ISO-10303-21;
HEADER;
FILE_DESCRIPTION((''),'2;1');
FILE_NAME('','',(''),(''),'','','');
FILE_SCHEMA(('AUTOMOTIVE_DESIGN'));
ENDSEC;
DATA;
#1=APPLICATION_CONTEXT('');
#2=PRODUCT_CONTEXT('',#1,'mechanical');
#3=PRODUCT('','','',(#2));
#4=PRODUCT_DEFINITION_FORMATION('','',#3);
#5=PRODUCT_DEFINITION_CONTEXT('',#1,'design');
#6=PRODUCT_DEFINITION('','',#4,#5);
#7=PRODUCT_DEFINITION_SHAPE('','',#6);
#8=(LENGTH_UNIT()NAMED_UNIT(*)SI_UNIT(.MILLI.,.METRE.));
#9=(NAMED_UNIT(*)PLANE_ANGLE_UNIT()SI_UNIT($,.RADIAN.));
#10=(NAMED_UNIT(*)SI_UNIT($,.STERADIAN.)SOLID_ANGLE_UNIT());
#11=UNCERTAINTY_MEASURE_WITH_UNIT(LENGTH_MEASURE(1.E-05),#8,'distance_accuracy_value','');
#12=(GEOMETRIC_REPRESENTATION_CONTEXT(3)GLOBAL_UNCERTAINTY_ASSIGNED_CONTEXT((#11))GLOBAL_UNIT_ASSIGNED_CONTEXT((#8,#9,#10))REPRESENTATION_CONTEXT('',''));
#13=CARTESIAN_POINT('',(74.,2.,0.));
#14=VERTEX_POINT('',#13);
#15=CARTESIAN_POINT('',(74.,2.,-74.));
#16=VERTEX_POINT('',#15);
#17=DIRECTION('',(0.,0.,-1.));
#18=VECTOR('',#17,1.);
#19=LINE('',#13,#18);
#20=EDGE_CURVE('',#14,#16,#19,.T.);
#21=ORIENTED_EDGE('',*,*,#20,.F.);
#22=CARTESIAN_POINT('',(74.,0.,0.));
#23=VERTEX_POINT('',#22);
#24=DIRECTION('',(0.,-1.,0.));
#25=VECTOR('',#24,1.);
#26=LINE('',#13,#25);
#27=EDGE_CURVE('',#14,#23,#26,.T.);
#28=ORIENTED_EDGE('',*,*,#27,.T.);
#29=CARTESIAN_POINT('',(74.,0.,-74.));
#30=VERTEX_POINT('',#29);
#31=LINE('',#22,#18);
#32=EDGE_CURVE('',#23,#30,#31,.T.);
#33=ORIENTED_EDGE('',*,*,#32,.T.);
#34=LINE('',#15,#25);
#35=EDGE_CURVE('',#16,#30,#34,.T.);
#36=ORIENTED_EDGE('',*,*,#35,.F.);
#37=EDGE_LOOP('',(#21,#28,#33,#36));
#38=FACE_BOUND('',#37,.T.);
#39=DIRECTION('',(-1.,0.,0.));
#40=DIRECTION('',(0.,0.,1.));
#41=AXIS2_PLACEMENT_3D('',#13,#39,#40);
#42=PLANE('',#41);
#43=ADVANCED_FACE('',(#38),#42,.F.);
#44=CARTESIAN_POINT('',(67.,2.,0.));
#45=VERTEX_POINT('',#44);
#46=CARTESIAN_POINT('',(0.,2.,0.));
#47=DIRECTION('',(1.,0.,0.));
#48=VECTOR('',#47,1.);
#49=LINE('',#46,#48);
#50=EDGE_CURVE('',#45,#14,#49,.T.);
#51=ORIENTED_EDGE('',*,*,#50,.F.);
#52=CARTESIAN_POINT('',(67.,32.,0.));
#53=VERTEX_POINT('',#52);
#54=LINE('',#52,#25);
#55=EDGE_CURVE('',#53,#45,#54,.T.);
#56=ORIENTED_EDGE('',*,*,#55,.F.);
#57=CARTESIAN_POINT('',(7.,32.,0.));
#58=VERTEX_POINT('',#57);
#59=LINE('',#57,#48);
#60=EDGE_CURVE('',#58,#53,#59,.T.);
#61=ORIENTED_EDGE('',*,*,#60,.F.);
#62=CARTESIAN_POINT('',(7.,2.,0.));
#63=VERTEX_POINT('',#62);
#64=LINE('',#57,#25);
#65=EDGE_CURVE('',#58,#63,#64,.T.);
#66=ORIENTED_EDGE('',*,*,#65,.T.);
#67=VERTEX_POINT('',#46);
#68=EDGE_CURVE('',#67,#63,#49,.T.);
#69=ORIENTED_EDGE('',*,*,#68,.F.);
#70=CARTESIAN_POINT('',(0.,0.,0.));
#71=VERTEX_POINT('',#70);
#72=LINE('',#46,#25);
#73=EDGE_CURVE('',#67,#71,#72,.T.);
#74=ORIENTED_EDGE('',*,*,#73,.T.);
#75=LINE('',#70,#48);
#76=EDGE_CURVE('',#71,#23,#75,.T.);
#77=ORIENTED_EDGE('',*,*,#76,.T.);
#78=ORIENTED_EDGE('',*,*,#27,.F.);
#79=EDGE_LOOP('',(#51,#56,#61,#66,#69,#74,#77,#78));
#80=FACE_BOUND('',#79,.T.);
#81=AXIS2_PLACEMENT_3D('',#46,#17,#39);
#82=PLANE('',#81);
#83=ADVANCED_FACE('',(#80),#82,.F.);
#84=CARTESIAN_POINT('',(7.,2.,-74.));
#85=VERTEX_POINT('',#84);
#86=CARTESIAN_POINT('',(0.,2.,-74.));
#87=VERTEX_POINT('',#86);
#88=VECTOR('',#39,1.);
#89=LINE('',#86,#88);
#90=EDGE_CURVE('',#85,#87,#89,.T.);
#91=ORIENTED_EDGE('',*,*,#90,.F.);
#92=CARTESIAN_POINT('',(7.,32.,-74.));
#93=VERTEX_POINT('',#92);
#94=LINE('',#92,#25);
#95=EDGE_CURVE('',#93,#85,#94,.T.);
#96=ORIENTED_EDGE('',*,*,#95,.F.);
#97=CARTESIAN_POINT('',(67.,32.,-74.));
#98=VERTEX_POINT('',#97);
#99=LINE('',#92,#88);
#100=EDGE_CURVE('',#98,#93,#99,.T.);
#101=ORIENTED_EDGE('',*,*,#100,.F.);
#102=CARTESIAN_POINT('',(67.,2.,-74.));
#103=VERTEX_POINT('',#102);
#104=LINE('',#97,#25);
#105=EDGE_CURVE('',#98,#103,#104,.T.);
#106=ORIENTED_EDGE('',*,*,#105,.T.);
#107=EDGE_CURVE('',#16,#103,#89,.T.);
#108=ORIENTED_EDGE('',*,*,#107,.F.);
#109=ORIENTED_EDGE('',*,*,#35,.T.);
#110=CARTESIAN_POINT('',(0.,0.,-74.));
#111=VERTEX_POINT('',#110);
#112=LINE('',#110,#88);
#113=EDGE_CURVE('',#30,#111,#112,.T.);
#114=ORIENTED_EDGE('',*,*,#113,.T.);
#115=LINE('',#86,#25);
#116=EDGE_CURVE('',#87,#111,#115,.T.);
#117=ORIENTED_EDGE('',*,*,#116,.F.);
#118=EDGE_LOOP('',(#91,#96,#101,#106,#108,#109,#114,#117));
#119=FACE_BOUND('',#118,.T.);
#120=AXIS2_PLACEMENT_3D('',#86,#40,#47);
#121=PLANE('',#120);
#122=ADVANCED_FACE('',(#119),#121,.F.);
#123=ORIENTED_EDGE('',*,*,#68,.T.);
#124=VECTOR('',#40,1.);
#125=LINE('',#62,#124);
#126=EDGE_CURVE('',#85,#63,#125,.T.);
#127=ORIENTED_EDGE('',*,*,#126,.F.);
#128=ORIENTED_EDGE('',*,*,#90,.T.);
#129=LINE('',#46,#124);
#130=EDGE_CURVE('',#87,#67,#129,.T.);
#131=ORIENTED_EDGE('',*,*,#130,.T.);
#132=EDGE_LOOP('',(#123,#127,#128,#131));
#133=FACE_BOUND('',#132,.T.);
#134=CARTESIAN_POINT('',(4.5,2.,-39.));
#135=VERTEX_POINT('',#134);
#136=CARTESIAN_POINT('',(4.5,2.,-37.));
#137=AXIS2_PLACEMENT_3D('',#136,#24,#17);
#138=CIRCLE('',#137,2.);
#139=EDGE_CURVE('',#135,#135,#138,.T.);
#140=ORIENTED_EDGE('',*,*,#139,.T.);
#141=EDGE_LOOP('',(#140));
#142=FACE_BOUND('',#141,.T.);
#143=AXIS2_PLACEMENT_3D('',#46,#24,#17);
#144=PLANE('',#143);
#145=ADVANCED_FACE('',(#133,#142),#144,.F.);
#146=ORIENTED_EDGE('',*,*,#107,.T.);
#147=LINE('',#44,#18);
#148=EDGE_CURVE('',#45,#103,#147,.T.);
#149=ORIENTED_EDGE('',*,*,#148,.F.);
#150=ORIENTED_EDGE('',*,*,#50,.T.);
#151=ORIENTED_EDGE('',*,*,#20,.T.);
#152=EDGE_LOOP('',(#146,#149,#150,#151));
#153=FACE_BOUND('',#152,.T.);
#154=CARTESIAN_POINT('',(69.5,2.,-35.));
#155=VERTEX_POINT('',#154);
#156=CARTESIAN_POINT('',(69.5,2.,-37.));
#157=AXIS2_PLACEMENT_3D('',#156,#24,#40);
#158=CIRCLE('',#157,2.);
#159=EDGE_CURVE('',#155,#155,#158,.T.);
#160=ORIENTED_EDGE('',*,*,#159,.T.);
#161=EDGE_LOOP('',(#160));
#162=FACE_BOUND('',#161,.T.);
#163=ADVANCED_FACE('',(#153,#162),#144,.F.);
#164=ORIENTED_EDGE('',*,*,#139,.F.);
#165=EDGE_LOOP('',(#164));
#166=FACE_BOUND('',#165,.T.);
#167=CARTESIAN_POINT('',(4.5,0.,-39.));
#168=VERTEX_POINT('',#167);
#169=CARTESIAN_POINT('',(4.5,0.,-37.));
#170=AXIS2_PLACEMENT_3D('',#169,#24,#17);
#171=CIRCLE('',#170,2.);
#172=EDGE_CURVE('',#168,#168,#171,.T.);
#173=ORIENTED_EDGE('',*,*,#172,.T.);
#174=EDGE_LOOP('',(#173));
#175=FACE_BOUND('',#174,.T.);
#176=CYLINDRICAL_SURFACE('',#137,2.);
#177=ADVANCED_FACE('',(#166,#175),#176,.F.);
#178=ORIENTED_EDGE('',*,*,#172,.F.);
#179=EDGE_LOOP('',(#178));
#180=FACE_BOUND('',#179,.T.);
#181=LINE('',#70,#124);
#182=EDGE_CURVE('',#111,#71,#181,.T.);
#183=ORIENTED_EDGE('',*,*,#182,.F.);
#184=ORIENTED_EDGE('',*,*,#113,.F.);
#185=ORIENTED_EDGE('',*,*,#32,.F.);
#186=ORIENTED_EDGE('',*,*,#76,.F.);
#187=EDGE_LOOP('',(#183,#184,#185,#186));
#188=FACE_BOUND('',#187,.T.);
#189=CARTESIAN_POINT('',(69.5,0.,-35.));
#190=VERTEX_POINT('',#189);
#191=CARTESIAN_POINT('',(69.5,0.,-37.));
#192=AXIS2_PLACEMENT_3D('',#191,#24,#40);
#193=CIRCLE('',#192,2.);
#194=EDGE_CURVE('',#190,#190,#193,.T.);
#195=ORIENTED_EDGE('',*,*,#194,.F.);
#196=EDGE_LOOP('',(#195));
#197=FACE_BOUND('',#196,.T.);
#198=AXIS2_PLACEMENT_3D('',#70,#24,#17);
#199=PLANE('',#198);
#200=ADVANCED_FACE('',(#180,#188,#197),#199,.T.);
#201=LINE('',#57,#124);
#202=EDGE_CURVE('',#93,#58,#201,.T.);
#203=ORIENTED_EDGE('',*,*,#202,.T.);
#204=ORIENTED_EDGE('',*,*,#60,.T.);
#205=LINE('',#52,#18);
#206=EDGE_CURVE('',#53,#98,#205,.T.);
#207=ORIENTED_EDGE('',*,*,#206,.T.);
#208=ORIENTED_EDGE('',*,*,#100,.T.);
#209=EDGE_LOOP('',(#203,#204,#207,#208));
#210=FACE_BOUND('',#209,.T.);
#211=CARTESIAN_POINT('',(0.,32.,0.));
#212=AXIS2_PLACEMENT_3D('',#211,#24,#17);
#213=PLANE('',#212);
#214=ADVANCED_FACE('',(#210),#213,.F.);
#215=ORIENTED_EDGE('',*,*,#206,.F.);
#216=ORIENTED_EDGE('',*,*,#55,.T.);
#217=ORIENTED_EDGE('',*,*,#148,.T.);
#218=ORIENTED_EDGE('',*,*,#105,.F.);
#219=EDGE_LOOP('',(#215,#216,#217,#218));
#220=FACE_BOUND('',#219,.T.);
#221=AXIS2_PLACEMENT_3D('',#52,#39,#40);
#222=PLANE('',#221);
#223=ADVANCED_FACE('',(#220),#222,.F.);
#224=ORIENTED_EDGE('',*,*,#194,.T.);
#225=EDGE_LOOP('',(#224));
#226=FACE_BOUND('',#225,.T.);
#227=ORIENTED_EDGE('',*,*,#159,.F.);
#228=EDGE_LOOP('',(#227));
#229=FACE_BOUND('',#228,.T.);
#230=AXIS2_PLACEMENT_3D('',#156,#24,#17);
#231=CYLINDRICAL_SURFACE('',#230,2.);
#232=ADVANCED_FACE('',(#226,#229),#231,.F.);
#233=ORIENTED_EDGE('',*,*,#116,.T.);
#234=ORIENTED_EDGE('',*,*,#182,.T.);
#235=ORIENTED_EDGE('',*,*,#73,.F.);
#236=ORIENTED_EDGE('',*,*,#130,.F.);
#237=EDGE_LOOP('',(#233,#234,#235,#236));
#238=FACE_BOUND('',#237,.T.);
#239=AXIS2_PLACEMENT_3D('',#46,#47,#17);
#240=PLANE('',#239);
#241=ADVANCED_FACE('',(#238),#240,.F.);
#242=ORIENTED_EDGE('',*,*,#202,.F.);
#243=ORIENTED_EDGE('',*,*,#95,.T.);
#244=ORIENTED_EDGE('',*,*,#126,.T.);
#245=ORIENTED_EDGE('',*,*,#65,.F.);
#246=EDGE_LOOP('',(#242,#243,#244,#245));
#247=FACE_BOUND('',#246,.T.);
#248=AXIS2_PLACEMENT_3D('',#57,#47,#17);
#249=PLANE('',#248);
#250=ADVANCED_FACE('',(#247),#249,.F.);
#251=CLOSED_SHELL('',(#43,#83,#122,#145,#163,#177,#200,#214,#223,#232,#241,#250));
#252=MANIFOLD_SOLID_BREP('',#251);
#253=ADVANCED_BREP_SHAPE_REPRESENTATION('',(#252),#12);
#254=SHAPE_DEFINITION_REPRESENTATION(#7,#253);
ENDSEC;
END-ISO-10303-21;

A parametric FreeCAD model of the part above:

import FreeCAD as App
import Part
import Sketcher

doc = App.newDocument("Part")
params = doc.addObject("Spreadsheet::Sheet", "Params")
for row, (alias, value) in enumerate([
    ("sketch1_width", "74 mm"),
    ("pad1_length", "2 mm"),
    ("sketch2_width", "60 mm"),
    ("sketch2_height", "74 mm"),
    ("pad2_length", "30 mm"),
    ("sketch3_diameter", "4 mm"),
    ("pocket1_length", "2 mm"),
], start=1):
    params.set(f"A{row}", alias)
    params.set(f"B{row}", "=" + value)
    params.setAlias(f"B{row}", alias)

body = doc.addObject("PartDesign::Body", "Body")

# Sketch on XZ plane
sketch1 = body.newObject("Sketcher::SketchObject", "Sketch")
sketch1.AttachmentSupport = (doc.getObject("XZ_Plane"), [""])
sketch1.MapMode = "FlatFace"
sketch1.addGeometry(Part.LineSegment(App.Vector(0, -74, 0), App.Vector(0, 0, 0)), False)
sketch1.addGeometry(Part.LineSegment(App.Vector(0, 0, 0), App.Vector(74, 0, 0)), False)
sketch1.addGeometry(Part.LineSegment(App.Vector(74, 0, 0), App.Vector(74, -74, 0)), False)
sketch1.addGeometry(Part.LineSegment(App.Vector(74, -74, 0), App.Vector(0, -74, 0)), False)
sketch1.addConstraint(Sketcher.Constraint("Coincident", 0, 2, 1, 1))
sketch1.addConstraint(Sketcher.Constraint("Coincident", 1, 2, 2, 1))
sketch1.addConstraint(Sketcher.Constraint("Coincident", 2, 2, 3, 1))
sketch1.addConstraint(Sketcher.Constraint("Coincident", 3, 2, 0, 1))
sketch1.addConstraint(Sketcher.Constraint("Vertical", 0))
sketch1.addConstraint(Sketcher.Constraint("Horizontal", 1))
sketch1.addConstraint(Sketcher.Constraint("Vertical", 2))
sketch1.addConstraint(Sketcher.Constraint("Horizontal", 3))
sketch1.addConstraint(Sketcher.Constraint("Coincident", 0, 2, -1, 1))
sketch1.addConstraint(Sketcher.Constraint("Equal", 3, 0))
sketch1.addConstraint(Sketcher.Constraint("DistanceX", 1, 1, 1, 2, 74.0))
sketch1.setExpression("Constraints[10]", "Params.sketch1_width")
pad1 = body.newObject("PartDesign::Pad", "Pad")
pad1.Profile = sketch1
pad1.setExpression("Length", "Params.pad1_length")
pad1.Reversed = True

# Sketch on XZ plane
sketch2 = body.newObject("Sketcher::SketchObject", "Sketch001")
sketch2.AttachmentSupport = (doc.getObject("XZ_Plane"), [""])
sketch2.MapMode = "FlatFace"
sketch2.AttachmentOffset = App.Placement(App.Vector(0, 0, -2), App.Rotation())
sketch2.addGeometry(Part.LineSegment(App.Vector(7, -74, 0), App.Vector(7, 0, 0)), False)
sketch2.addGeometry(Part.LineSegment(App.Vector(7, 0, 0), App.Vector(67, 0, 0)), False)
sketch2.addGeometry(Part.LineSegment(App.Vector(67, 0, 0), App.Vector(67, -74, 0)), False)
sketch2.addGeometry(Part.LineSegment(App.Vector(67, -74, 0), App.Vector(7, -74, 0)), False)
sketch2.addConstraint(Sketcher.Constraint("Coincident", 0, 2, 1, 1))
sketch2.addConstraint(Sketcher.Constraint("Coincident", 1, 2, 2, 1))
sketch2.addConstraint(Sketcher.Constraint("Coincident", 2, 2, 3, 1))
sketch2.addConstraint(Sketcher.Constraint("Coincident", 3, 2, 0, 1))
sketch2.addConstraint(Sketcher.Constraint("Vertical", 0))
sketch2.addConstraint(Sketcher.Constraint("Horizontal", 1))
sketch2.addConstraint(Sketcher.Constraint("Vertical", 2))
sketch2.addConstraint(Sketcher.Constraint("Horizontal", 3))
sketch2.addConstraint(Sketcher.Constraint("PointOnObject", 0, 2, -1))
sketch2.addConstraint(Sketcher.Constraint("DistanceX", 1, 1, 1, 2, 60.0))
sketch2.addConstraint(Sketcher.Constraint("DistanceY", 0, 1, 0, 2, 74.0))
sketch2.addConstraint(Sketcher.Constraint("DistanceX", -1, 1, 0, 2, 7.0))
sketch2.setExpression("Constraints[9]", "Params.sketch2_width")
sketch2.setExpression("Constraints[10]", "Params.sketch2_height")
pad2 = body.newObject("PartDesign::Pad", "Pad001")
pad2.Profile = sketch2
pad2.setExpression("Length", "Params.pad2_length")
pad2.Reversed = True

# Sketch on XZ plane
sketch3 = body.newObject("Sketcher::SketchObject", "Sketch002")
sketch3.AttachmentSupport = (doc.getObject("XZ_Plane"), [""])
sketch3.MapMode = "FlatFace"
sketch3.addGeometry(Part.Circle(App.Vector(4.5, -37, 0), App.Vector(0, 0, 1), 2), False)
sketch3.addGeometry(Part.Circle(App.Vector(69.5, -37, 0), App.Vector(0, 0, 1), 2), False)
sketch3.addConstraint(Sketcher.Constraint("Equal", 0, 1))
sketch3.addConstraint(Sketcher.Constraint("Horizontal", 0, 3, 1, 3))
sketch3.addConstraint(Sketcher.Constraint("Diameter", 0, 4.0))
sketch3.addConstraint(Sketcher.Constraint("DistanceY", 0, 3, -1, 1, 37.0))
sketch3.addConstraint(Sketcher.Constraint("DistanceX", 0, 3, 1, 3, 65.0))
sketch3.addConstraint(Sketcher.Constraint("DistanceX", -1, 1, 0, 3, 4.5))
sketch3.setExpression("Constraints[2]", "Params.sketch3_diameter")
pocket1 = body.newObject("PartDesign::Pocket", "Pocket")
pocket1.Profile = sketch3
pocket1.setExpression("Length", "Params.pocket1_length")

doc.recompute()
